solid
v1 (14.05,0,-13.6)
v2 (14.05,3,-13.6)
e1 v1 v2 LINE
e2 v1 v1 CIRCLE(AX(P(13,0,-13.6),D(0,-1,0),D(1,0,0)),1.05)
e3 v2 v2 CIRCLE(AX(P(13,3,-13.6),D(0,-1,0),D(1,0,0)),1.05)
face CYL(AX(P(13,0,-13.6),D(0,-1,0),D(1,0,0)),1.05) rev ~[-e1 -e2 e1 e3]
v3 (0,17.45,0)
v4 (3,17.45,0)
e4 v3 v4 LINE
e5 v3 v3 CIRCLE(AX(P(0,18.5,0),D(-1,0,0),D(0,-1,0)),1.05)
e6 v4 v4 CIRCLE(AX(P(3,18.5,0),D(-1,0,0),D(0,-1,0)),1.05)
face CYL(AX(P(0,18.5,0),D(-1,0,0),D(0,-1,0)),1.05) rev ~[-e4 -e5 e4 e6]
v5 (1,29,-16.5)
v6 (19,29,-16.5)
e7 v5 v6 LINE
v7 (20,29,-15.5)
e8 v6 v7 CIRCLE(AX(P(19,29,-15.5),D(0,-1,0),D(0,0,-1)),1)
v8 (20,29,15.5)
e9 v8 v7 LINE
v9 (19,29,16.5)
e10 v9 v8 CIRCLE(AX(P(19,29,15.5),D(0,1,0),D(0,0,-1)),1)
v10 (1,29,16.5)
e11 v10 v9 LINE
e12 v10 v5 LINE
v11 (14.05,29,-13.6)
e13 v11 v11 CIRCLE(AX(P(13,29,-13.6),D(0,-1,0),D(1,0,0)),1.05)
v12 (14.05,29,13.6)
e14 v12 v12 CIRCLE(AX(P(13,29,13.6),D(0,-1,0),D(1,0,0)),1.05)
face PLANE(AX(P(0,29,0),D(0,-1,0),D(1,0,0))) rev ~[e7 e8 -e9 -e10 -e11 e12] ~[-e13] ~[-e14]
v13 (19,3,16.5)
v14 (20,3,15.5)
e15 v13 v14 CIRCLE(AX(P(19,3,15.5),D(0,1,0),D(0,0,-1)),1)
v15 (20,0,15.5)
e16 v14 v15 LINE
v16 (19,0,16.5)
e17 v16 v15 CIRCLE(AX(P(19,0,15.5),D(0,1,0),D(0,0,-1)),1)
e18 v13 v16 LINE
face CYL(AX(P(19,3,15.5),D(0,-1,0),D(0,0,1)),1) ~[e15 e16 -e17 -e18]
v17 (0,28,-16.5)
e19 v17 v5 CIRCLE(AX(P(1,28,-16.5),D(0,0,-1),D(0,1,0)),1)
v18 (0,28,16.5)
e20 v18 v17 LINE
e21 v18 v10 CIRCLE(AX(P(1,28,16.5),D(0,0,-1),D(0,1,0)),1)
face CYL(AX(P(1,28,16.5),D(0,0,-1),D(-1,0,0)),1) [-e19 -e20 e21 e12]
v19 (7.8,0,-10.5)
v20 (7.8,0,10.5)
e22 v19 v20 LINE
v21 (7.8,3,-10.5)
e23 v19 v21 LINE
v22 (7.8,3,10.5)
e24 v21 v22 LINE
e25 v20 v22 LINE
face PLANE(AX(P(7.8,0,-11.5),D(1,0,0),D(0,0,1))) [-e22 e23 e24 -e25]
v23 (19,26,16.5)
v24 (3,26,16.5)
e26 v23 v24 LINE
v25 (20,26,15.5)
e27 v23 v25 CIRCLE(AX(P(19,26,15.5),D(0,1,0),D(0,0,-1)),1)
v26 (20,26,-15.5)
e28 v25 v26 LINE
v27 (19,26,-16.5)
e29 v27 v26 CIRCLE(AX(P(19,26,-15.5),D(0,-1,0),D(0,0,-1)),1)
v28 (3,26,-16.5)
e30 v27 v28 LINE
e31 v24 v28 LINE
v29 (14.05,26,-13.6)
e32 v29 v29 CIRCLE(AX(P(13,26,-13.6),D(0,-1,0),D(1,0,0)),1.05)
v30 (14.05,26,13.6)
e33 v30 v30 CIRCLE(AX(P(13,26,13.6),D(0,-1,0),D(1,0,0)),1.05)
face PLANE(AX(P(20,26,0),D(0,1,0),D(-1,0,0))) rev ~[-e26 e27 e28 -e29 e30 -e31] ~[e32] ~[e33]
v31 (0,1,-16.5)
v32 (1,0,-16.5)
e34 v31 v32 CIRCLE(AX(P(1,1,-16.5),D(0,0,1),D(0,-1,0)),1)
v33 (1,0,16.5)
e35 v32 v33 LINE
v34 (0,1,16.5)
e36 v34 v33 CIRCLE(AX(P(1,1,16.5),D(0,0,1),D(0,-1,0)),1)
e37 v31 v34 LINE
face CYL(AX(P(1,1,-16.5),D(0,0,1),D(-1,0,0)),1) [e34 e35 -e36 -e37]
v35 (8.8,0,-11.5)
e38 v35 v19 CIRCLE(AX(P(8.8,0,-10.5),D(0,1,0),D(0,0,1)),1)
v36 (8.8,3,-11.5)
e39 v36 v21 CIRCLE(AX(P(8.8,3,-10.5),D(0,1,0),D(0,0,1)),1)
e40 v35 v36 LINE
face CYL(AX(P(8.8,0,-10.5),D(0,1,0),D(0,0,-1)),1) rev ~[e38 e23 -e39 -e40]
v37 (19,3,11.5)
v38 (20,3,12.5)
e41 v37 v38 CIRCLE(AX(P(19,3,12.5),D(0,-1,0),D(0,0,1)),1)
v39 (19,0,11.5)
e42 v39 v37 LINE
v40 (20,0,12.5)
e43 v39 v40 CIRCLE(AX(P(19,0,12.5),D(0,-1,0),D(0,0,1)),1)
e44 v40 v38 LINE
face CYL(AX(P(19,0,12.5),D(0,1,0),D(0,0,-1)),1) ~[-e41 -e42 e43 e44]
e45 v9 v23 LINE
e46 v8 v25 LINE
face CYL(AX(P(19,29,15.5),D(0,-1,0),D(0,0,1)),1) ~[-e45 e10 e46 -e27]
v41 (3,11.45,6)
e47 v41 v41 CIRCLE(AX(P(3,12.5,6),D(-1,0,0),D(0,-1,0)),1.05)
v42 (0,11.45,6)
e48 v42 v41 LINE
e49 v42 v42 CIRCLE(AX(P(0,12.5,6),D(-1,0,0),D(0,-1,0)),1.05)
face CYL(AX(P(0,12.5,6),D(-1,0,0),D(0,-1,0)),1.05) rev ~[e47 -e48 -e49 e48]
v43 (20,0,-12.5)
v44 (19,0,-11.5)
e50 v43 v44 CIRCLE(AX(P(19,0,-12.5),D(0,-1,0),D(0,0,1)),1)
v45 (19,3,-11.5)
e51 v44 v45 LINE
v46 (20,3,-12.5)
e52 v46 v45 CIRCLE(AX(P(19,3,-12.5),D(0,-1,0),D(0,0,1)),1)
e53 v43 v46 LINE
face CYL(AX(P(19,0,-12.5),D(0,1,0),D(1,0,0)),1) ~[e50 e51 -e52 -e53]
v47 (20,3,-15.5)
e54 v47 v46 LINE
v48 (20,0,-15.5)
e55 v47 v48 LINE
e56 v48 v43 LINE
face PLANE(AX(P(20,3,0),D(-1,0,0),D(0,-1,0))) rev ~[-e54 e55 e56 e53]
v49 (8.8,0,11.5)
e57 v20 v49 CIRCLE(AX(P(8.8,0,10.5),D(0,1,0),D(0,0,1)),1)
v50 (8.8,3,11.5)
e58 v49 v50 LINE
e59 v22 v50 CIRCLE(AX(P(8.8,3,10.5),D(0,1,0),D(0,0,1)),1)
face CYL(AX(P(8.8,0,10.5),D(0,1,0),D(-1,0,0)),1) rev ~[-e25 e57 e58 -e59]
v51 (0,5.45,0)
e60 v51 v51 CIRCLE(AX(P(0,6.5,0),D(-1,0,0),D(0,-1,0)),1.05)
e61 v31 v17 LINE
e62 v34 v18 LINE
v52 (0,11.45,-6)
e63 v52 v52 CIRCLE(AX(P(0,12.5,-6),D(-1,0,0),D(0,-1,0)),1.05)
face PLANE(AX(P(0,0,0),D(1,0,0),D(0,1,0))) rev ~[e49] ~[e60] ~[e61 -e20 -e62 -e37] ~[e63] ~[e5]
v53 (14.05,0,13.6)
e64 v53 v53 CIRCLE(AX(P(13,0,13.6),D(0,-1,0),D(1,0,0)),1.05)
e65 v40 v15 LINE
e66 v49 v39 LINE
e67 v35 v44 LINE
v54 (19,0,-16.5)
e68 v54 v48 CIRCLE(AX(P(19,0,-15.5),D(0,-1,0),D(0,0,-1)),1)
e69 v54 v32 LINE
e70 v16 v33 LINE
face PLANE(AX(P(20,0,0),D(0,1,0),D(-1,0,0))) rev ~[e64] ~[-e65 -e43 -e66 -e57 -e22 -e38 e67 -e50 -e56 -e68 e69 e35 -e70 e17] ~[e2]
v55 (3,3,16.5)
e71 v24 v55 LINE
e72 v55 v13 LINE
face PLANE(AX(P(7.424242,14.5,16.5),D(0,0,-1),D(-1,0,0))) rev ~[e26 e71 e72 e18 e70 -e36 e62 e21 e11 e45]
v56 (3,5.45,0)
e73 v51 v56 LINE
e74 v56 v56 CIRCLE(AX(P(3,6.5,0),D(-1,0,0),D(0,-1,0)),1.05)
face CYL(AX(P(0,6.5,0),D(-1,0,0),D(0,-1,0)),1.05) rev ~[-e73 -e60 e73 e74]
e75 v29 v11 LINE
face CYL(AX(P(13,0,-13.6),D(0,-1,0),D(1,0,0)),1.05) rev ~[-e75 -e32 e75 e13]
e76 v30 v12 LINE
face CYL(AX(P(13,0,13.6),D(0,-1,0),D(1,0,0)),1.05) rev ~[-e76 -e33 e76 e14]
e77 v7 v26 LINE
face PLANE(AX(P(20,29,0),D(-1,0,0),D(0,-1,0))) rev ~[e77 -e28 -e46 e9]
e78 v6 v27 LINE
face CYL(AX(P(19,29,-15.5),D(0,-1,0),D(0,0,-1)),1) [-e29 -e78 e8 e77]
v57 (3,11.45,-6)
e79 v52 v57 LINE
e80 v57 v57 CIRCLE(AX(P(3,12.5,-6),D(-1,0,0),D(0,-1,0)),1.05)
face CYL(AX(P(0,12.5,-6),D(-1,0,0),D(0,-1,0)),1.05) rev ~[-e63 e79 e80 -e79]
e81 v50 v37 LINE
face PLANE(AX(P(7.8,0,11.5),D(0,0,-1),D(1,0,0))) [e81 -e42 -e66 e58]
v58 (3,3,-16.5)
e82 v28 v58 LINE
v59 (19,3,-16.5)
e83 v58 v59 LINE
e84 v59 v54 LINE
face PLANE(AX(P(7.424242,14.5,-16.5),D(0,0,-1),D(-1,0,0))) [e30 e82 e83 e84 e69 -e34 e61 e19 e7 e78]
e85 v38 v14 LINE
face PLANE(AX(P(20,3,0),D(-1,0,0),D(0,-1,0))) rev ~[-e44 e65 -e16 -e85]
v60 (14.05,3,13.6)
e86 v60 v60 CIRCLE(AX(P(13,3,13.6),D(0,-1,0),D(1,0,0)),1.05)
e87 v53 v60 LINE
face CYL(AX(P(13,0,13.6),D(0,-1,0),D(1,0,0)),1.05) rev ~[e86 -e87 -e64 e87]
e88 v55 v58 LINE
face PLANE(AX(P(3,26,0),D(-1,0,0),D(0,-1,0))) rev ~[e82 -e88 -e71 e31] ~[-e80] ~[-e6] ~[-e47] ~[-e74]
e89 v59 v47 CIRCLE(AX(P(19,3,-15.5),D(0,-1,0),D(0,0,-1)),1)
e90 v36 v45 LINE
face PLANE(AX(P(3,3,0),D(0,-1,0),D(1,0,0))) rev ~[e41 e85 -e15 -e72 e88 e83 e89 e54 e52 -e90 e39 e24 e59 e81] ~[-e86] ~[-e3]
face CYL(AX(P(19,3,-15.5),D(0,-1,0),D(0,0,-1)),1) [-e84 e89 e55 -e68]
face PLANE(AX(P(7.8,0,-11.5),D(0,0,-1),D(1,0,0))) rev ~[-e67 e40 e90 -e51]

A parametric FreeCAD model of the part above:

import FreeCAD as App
import Part
import Sketcher

V = App.Vector


def edges_at(feature, points):
    """Names of the edges that pass closest to the given points."""
    edges = feature.Shape.Edges
    near = lambda p: min(range(len(edges)), key=lambda i: edges[i].distToShape(Part.Vertex(*p))[0])
    return sorted({f"Edge{near(p) + 1}" for p in points})


def add_polygon(sketch, points):
    """Adds a closed chain of lines whose ends are joined by coincident constraints."""
    first, n = sketch.GeometryCount, len(points)
    for a, b in zip(points, points[1:] + points[:1]):
        sketch.addGeometry(Part.LineSegment(App.Vector(*a, 0), App.Vector(*b, 0)), False)
    for i in range(n):
        sketch.addConstraint(Sketcher.Constraint("Coincident", first + i, 2, first + (i + 1) % n, 1))

doc = App.newDocument("Part")
params = doc.addObject("Spreadsheet::Sheet", "Params")
for row, (alias, value) in enumerate([
    ("sketch1_width", "20 mm"),
    ("sketch1_width2", "17 mm"),
    ("sketch1_height", "29 mm"),
    ("sketch1_height2", "3 mm"),
    ("pad1_length", "33 mm"),
    ("sketch2_diameter", "2.1 mm"),
    ("pocket1_length", "33 mm"),
    ("sketch3_height", "23 mm"),
    ("sketch3_width", "12.2 mm"),
    ("pocket2_length", "5 mm"),
    ("sketch4_diameter", "2.1 mm"),
    ("pocket3_length", "5 mm"),
    ("fillet_radius", "1 mm"),
], start=1):
    params.set(f"A{row}", alias)
    params.set(f"B{row}", "=" + value)
    params.setAlias(f"B{row}", alias)

body = doc.addObject("PartDesign::Body", "Body")

sketch1 = doc.addObject("Sketcher::SketchObject", "Sketch")
body.addObject(sketch1)
sketch1.AttachmentSupport = (doc.XY_Plane, [""])
sketch1.MapMode = "FlatFace"
add_polygon(sketch1, [(0, 29), (0, 0), (20, 0), (20, 3), (3, 3), (3, 26), (20, 26), (20, 29)])
sketch1.addConstraint(Sketcher.Constraint("Vertical", 0))
sketch1.addConstraint(Sketcher.Constraint("Horizontal", 1))
sketch1.addConstraint(Sketcher.Constraint("Vertical", 2))
sketch1.addConstraint(Sketcher.Constraint("Horizontal", 3))
sketch1.addConstraint(Sketcher.Constraint("Vertical", 4))
sketch1.addConstraint(Sketcher.Constraint("Horizontal", 5))
sketch1.addConstraint(Sketcher.Constraint("Vertical", 6))
sketch1.addConstraint(Sketcher.Constraint("Horizontal", 7))
sketch1.addConstraint(Sketcher.Constraint("Coincident", 0, 2, -1, 1))
sketch1.addConstraint(Sketcher.Constraint("Vertical", 2, 2, 5, 2))
sketch1.addConstraint(Sketcher.Constraint("Equal", 2, 6))
sketch1.addConstraint(Sketcher.Constraint("DistanceX", 1, 1, 1, 2, 20.0))
sketch1.addConstraint(Sketcher.Constraint("DistanceX", 3, 2, 3, 1, 17.0))
sketch1.addConstraint(Sketcher.Constraint("DistanceY", 0, 2, 0, 1, 29.0))
sketch1.addConstraint(Sketcher.Constraint("DistanceY", 2, 1, 2, 2, 3.0))
sketch1.setExpression("Constraints[19]", "Params.sketch1_width")
sketch1.setExpression("Constraints[20]", "Params.sketch1_width2")
sketch1.setExpression("Constraints[21]", "Params.sketch1_height")
sketch1.setExpression("Constraints[22]", "Params.sketch1_height2")
pad1 = doc.addObject("PartDesign::Pad", "Pad")
body.addObject(pad1)
pad1.Profile = sketch1
pad1.setExpression("Length", "Params.pad1_length")
pad1.Midplane = True

sketch2 = doc.addObject("Sketcher::SketchObject", "Sketch001")
body.addObject(sketch2)
sketch2.AttachmentSupport = (doc.XZ_Plane, [""])
sketch2.MapMode = "FlatFace"
sketch2.addGeometry(Part.Circle(V(13, 13.6, 0), V(0, 0, 1), 1.05), False)
sketch2.addGeometry(Part.Circle(V(13, -13.6, 0), V(0, 0, 1), 1.05), False)
sketch2.addConstraint(Sketcher.Constraint("Equal", 0, 1))
sketch2.addConstraint(Sketcher.Constraint("Symmetric", 0, 3, 1, 3, -1))
sketch2.addConstraint(Sketcher.Constraint("Diameter", 0, 2.1))
sketch2.addConstraint(Sketcher.Constraint("DistanceX", -1, 1, 0, 3, 13.0))
sketch2.addConstraint(Sketcher.Constraint("DistanceY", -1, 1, 0, 3, 13.6))
sketch2.setExpression("Constraints[2]", "Params.sketch2_diameter")
pocket1 = doc.addObject("PartDesign::Pocket", "Pocket")
body.addObject(pocket1)
pocket1.Profile = sketch2
pocket1.setExpression("Length", "Params.pocket1_length")

sketch3 = doc.addObject("Sketcher::SketchObject", "Sketch002")
body.addObject(sketch3)
sketch3.AttachmentSupport = (doc.XZ_Plane, [""])
sketch3.MapMode = "FlatFace"
add_polygon(sketch3, [(7.8, 11.5), (7.8, -11.5), (20, -11.5), (20, 11.5)])
sketch3.addConstraint(Sketcher.Constraint("Vertical", 0))
sketch3.addConstraint(Sketcher.Constraint("Horizontal", 1))
sketch3.addConstraint(Sketcher.Constraint("Vertical", 2))
sketch3.addConstraint(Sketcher.Constraint("Horizontal", 3))
sketch3.addConstraint(Sketcher.Constraint("DistanceY", 0, 2, 0, 1, 23.0))
sketch3.addConstraint(Sketcher.Constraint("DistanceX", 1, 1, 1, 2, 12.2))
sketch3.addConstraint(Sketcher.Constraint("DistanceX", -1, 1, 1, 2, 20.0))
sketch3.addConstraint(Sketcher.Constraint("DistanceY", 0, 2, -1, 1, 11.5))
sketch3.setExpression("Constraints[8]", "Params.sketch3_height")
sketch3.setExpression("Constraints[9]", "Params.sketch3_width")
pocket2 = doc.addObject("PartDesign::Pocket", "Pocket001")
body.addObject(pocket2)
pocket2.Profile = sketch3
pocket2.setExpression("Length", "Params.pocket2_length")

sketch4 = doc.addObject("Sketcher::SketchObject", "Sketch003")
body.addObject(sketch4)
sketch4.AttachmentSupport = (doc.YZ_Plane, [""])
sketch4.MapMode = "FlatFace"
sketch4.addGeometry(Part.Circle(V(12.5, 6, 0), V(0, 0, 1), 1.05), False)
sketch4.addGeometry(Part.Circle(V(12.5, -6, 0), V(0, 0, 1), 1.05), False)
sketch4.addGeometry(Part.Circle(V(6.5, 0, 0), V(0, 0, 1), 1.05), False)
sketch4.addGeometry(Part.Circle(V(18.5, 0, 0), V(0, 0, 1), 1.05), False)
sketch4.addConstraint(Sketcher.Constraint("Equal", 0, 1))
sketch4.addConstraint(Sketcher.Constraint("Equal", 1, 2))
sketch4.addConstraint(Sketcher.Constraint("Equal", 2, 3))
sketch4.addConstraint(Sketcher.Constraint("Symmetric", 0, 3, 1, 3, -1))
sketch4.addConstraint(Sketcher.Constraint("PointOnObject", 2, 3, -1))
sketch4.addConstraint(Sketcher.Constraint("PointOnObject", 3, 3, -1))
sketch4.addConstraint(Sketcher.Constraint("Diameter", 0, 2.1))
sketch4.addConstraint(Sketcher.Constraint("DistanceY", -1, 1, 0, 3, 6.0))
sketch4.addConstraint(Sketcher.Constraint("DistanceX", 2, 3, 0, 3, 6.0))
sketch4.addConstraint(Sketcher.Constraint("DistanceX", 0, 3, 3, 3, 6.0))
sketch4.addConstraint(Sketcher.Constraint("DistanceX", -1, 1, 0, 3, 12.5))
sketch4.setExpression("Constraints[6]", "Params.sketch4_diameter")
pocket3 = doc.addObject("PartDesign::Pocket", "Pocket002")
body.addObject(pocket3)
pocket3.Profile = sketch4
pocket3.setExpression("Length", "Params.pocket3_length")
pocket3.Reversed = True
doc.recompute()

fillet = doc.addObject("PartDesign::Fillet", "Fillet")
body.addObject(fillet)
fillet.Base = (pocket3, edges_at(pocket3, [
    (20, 27.5, 16.5),
    (20, 27.5, -16.5),
    (20, 1.5, 16.5),
    (20, 1.5, -16.5),
    (0, 0, 0),
    (0, 29, 0),
    (20, 1.5, -11.5),
    (20, 1.5, 11.5),
    (7.8, 1.5, -11.5),
    (7.8, 1.5, 11.5),
]))
fillet.setExpression("Radius", "Params.fillet_radius")

doc.recompute()
